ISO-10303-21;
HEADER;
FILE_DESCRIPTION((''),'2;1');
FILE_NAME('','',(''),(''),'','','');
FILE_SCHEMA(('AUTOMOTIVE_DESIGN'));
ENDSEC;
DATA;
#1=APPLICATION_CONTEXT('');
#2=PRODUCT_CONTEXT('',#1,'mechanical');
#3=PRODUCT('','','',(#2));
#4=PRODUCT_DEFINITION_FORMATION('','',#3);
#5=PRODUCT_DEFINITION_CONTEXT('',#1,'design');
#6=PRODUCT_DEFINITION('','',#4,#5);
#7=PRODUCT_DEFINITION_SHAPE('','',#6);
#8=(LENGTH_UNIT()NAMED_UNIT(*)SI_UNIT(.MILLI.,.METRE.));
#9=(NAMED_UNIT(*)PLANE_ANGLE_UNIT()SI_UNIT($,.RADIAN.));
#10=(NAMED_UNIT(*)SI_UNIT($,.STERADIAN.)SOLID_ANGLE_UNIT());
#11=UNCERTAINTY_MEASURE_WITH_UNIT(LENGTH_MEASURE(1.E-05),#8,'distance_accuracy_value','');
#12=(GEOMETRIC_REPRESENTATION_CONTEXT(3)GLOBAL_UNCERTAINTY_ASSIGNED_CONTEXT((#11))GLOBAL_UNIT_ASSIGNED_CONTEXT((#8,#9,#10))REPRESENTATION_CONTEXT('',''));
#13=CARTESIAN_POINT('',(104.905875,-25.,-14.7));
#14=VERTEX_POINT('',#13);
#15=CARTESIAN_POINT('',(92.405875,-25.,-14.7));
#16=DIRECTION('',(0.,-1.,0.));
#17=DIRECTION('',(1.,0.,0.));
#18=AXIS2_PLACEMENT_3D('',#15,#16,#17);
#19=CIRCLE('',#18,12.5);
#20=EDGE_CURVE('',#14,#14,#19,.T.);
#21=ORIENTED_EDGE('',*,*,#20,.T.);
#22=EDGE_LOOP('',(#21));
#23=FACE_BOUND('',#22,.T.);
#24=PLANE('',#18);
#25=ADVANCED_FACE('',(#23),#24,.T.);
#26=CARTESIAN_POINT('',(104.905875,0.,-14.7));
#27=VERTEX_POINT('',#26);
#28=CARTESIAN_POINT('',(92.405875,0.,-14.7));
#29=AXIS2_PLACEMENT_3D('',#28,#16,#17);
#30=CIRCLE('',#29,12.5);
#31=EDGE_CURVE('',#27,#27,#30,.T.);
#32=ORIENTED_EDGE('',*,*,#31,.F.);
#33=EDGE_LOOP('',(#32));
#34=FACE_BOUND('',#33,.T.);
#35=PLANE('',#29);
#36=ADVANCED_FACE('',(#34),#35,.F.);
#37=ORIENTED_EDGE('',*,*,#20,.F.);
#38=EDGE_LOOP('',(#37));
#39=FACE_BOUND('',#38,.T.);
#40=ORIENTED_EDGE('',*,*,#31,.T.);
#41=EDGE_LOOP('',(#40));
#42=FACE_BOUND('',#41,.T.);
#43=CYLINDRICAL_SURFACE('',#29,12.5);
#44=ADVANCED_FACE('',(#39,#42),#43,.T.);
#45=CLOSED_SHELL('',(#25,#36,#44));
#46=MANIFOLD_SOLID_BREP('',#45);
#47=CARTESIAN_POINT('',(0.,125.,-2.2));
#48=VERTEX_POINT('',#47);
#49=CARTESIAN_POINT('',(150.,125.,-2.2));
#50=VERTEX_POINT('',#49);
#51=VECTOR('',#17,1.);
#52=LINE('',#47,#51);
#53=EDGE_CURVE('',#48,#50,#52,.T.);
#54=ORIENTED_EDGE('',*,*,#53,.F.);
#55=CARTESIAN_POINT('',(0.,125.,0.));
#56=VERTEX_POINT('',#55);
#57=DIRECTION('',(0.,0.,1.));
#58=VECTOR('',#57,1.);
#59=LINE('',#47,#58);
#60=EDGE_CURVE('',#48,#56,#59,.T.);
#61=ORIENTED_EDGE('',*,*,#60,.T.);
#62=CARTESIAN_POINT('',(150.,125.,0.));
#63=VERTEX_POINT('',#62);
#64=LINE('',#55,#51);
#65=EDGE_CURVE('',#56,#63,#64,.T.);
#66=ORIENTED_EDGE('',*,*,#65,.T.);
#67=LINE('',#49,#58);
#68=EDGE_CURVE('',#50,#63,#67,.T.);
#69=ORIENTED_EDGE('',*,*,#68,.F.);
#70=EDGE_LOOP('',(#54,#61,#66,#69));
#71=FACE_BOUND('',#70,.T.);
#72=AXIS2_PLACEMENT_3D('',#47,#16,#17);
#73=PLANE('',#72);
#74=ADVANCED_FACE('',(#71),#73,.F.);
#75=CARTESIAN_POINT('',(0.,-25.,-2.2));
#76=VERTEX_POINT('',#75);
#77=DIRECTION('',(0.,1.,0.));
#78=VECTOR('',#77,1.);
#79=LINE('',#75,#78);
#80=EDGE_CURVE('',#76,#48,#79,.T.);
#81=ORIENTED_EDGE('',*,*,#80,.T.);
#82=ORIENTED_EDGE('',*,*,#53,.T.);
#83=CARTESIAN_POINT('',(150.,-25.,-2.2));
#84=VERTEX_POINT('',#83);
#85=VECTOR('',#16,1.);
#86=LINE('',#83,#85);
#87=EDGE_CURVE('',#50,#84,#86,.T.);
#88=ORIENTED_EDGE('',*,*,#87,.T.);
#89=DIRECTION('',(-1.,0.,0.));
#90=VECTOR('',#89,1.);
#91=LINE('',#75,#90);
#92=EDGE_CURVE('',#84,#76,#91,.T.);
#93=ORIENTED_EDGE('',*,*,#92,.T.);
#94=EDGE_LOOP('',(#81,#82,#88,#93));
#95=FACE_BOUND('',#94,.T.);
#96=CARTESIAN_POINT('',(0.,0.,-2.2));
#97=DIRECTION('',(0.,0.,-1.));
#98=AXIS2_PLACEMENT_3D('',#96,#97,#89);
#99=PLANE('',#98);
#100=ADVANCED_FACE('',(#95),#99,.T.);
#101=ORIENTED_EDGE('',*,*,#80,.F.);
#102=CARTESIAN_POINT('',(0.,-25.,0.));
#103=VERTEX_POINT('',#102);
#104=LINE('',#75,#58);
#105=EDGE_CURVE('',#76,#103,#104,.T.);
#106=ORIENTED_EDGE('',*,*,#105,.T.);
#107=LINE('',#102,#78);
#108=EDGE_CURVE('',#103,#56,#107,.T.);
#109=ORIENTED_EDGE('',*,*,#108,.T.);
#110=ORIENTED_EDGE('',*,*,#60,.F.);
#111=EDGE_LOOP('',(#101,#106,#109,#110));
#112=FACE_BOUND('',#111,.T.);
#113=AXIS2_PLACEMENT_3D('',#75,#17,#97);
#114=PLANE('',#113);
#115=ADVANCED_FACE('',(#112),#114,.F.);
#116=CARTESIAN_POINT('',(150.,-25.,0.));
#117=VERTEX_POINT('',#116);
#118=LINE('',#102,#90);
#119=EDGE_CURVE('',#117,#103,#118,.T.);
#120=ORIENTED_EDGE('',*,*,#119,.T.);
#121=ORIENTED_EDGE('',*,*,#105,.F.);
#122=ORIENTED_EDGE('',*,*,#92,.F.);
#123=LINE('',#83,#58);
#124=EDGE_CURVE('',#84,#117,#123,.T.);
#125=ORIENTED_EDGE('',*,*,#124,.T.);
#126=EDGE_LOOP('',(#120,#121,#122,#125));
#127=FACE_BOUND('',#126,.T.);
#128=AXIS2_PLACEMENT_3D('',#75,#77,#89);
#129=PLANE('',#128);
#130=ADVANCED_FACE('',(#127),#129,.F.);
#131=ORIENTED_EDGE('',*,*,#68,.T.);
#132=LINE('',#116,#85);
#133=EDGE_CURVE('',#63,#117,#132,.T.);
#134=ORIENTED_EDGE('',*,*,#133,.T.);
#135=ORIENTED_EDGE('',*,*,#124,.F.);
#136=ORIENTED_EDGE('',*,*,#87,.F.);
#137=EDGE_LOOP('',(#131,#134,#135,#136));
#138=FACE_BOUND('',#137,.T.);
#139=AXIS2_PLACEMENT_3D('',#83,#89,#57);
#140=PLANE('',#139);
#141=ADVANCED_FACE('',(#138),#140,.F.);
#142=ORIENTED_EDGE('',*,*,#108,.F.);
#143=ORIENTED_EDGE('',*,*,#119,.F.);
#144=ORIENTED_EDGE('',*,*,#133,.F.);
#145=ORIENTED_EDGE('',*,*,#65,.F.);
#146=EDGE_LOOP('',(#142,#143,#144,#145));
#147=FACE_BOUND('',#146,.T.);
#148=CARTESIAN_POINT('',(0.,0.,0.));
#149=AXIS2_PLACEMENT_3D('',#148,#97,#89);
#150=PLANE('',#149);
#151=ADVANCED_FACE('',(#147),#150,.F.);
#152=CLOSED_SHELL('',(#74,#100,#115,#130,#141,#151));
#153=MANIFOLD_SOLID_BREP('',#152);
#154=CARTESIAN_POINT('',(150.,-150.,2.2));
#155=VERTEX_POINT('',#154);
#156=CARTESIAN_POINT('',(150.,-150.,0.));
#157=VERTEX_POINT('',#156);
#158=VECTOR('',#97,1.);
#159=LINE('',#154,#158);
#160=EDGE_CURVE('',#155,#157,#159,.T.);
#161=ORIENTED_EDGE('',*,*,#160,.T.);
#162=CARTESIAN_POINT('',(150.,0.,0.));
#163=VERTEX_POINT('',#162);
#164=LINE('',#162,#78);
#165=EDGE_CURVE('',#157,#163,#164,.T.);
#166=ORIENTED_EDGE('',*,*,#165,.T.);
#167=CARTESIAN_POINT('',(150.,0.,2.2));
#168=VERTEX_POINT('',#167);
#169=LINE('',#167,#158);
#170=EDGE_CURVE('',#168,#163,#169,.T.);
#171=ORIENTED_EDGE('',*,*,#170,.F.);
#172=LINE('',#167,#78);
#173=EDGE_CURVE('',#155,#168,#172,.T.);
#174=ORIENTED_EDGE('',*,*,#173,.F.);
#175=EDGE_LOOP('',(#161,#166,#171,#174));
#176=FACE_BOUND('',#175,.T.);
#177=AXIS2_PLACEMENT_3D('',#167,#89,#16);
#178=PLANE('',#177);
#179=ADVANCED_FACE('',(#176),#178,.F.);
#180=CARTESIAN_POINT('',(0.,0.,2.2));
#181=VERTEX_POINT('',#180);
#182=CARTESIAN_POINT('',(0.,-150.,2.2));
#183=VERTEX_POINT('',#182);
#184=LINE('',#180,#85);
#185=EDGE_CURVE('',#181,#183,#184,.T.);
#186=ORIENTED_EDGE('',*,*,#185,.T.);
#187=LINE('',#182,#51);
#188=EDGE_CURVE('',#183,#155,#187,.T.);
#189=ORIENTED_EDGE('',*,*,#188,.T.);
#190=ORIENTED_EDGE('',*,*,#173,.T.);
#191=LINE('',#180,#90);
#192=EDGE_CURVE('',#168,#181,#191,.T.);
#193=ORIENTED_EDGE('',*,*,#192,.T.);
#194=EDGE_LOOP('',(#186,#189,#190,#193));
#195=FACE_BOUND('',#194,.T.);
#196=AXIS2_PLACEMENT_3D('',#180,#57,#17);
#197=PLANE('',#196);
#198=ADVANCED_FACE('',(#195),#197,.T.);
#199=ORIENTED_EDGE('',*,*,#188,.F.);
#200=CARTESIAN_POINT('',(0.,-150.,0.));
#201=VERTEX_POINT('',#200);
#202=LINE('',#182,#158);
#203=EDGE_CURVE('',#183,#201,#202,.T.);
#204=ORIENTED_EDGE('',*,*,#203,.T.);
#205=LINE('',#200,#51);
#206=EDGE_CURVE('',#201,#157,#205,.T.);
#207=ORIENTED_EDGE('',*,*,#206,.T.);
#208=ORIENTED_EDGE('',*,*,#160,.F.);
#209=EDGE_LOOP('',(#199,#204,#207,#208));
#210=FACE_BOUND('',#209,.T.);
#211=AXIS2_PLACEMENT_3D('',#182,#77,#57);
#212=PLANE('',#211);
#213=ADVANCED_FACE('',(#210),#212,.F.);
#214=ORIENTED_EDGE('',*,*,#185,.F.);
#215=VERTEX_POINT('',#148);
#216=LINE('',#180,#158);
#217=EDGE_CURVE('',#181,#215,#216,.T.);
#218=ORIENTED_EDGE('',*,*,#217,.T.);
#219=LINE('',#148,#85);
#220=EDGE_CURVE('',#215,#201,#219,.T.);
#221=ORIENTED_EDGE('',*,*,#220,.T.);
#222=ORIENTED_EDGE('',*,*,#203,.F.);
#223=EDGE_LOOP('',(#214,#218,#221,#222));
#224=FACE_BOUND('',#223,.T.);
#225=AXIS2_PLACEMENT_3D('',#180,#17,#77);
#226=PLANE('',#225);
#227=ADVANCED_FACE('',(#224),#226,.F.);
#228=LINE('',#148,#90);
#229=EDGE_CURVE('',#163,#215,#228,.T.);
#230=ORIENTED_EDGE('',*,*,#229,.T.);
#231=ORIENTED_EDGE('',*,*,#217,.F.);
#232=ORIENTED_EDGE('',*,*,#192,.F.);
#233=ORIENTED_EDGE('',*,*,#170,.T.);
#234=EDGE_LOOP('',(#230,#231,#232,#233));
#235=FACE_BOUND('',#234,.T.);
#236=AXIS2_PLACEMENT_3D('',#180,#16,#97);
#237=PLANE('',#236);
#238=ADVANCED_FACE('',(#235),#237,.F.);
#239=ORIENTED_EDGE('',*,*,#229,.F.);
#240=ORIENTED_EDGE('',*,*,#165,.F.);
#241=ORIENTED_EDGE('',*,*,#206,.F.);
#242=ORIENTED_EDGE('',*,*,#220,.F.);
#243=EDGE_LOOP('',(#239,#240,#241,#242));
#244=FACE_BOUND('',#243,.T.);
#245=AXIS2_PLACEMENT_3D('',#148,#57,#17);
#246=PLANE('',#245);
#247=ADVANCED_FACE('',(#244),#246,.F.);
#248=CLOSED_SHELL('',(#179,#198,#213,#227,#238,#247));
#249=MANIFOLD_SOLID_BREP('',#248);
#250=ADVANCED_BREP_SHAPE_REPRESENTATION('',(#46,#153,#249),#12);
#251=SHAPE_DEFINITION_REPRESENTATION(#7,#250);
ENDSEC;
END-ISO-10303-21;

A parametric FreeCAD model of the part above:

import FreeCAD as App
import Part
import Sketcher

V = App.Vector


def add_polygon(sketch, points):
    """Adds a closed chain of lines whose ends are joined by coincident constraints."""
    first, n = sketch.GeometryCount, len(points)
    for a, b in zip(points, points[1:] + points[:1]):
        sketch.addGeometry(Part.LineSegment(App.Vector(*a, 0), App.Vector(*b, 0)), False)
    for i in range(n):
        sketch.addConstraint(Sketcher.Constraint("Coincident", first + i, 2, first + (i + 1) % n, 1))

doc = App.newDocument("Part")
body = doc.addObject("PartDesign::Body", "Body")

sketch1 = body.newObject("Sketcher::SketchObject", "Sketch")
sketch1.AttachmentSupport = (doc.getObject("XY_Plane"), [""])
sketch1.MapMode = "FlatFace"
add_polygon(sketch1, [(0, 0), (0, -150), (150, -150), (150, 0)])
sketch1.addConstraint([
    Sketcher.Constraint("Vertical", 0),
    Sketcher.Constraint("Horizontal", 1),
    Sketcher.Constraint("Vertical", 2),
    Sketcher.Constraint("Horizontal", 3),
    Sketcher.Constraint("Coincident", 3, 2, -1, 1),
    Sketcher.Constraint("Equal", 3, 0),
    Sketcher.Constraint("DistanceX", 1, 1, 1, 2, 150.0),
])
pad1 = body.newObject("PartDesign::Pad", "Pad")
pad1.Profile = sketch1
pad1.Length = 2.2
body2 = doc.addObject("PartDesign::Body", "Body001")

sketch2 = body2.newObject("Sketcher::SketchObject", "Sketch001")
sketch2.AttachmentSupport = (doc.getObject("XY_Plane001"), [""])
sketch2.MapMode = "FlatFace"
add_polygon(sketch2, [(150, 125), (150, -25), (0, -25), (0, 125)])
sketch2.addConstraint([
    Sketcher.Constraint("Vertical", 0),
    Sketcher.Constraint("Horizontal", 1),
    Sketcher.Constraint("Vertical", 2),
    Sketcher.Constraint("Horizontal", 3),
    Sketcher.Constraint("PointOnObject", 1, 2, -2),
    Sketcher.Constraint("Equal", 3, 0),
    Sketcher.Constraint("DistanceX", 1, 2, 1, 1, 150.0),
    Sketcher.Constraint("DistanceY", 0, 2, -1, 1, 25.0),
])
pad2 = body2.newObject("PartDesign::Pad", "Pad001")
pad2.Profile = sketch2
pad2.Length = 2.2
pad2.Reversed = True
body3 = doc.addObject("PartDesign::Body", "Body002")

sketch3 = body3.newObject("Sketcher::SketchObject", "Sketch002")
sketch3.AttachmentSupport = (doc.getObject("XZ_Plane002"), [""])
sketch3.MapMode = "FlatFace"
sketch3.AttachmentOffset = App.Placement(V(0, 0, 25), App.Rotation())
sketch3.addGeometry(Part.Circle(V(92.405875, -14.7, 0), V(0, 0, 1), 12.5), False)
sketch3.addConstraint([
    Sketcher.Constraint("Diameter", 0, 25.0),
    Sketcher.Constraint("DistanceY", 0, 3, -1, 1, 14.7),
    Sketcher.Constraint("DistanceX", -1, 1, 0, 3, 92.405875),
])
pad3 = body3.newObject("PartDesign::Pad", "Pad002")
pad3.Profile = sketch3
pad3.Length = 25
pad3.Reversed = True

doc.recompute()
